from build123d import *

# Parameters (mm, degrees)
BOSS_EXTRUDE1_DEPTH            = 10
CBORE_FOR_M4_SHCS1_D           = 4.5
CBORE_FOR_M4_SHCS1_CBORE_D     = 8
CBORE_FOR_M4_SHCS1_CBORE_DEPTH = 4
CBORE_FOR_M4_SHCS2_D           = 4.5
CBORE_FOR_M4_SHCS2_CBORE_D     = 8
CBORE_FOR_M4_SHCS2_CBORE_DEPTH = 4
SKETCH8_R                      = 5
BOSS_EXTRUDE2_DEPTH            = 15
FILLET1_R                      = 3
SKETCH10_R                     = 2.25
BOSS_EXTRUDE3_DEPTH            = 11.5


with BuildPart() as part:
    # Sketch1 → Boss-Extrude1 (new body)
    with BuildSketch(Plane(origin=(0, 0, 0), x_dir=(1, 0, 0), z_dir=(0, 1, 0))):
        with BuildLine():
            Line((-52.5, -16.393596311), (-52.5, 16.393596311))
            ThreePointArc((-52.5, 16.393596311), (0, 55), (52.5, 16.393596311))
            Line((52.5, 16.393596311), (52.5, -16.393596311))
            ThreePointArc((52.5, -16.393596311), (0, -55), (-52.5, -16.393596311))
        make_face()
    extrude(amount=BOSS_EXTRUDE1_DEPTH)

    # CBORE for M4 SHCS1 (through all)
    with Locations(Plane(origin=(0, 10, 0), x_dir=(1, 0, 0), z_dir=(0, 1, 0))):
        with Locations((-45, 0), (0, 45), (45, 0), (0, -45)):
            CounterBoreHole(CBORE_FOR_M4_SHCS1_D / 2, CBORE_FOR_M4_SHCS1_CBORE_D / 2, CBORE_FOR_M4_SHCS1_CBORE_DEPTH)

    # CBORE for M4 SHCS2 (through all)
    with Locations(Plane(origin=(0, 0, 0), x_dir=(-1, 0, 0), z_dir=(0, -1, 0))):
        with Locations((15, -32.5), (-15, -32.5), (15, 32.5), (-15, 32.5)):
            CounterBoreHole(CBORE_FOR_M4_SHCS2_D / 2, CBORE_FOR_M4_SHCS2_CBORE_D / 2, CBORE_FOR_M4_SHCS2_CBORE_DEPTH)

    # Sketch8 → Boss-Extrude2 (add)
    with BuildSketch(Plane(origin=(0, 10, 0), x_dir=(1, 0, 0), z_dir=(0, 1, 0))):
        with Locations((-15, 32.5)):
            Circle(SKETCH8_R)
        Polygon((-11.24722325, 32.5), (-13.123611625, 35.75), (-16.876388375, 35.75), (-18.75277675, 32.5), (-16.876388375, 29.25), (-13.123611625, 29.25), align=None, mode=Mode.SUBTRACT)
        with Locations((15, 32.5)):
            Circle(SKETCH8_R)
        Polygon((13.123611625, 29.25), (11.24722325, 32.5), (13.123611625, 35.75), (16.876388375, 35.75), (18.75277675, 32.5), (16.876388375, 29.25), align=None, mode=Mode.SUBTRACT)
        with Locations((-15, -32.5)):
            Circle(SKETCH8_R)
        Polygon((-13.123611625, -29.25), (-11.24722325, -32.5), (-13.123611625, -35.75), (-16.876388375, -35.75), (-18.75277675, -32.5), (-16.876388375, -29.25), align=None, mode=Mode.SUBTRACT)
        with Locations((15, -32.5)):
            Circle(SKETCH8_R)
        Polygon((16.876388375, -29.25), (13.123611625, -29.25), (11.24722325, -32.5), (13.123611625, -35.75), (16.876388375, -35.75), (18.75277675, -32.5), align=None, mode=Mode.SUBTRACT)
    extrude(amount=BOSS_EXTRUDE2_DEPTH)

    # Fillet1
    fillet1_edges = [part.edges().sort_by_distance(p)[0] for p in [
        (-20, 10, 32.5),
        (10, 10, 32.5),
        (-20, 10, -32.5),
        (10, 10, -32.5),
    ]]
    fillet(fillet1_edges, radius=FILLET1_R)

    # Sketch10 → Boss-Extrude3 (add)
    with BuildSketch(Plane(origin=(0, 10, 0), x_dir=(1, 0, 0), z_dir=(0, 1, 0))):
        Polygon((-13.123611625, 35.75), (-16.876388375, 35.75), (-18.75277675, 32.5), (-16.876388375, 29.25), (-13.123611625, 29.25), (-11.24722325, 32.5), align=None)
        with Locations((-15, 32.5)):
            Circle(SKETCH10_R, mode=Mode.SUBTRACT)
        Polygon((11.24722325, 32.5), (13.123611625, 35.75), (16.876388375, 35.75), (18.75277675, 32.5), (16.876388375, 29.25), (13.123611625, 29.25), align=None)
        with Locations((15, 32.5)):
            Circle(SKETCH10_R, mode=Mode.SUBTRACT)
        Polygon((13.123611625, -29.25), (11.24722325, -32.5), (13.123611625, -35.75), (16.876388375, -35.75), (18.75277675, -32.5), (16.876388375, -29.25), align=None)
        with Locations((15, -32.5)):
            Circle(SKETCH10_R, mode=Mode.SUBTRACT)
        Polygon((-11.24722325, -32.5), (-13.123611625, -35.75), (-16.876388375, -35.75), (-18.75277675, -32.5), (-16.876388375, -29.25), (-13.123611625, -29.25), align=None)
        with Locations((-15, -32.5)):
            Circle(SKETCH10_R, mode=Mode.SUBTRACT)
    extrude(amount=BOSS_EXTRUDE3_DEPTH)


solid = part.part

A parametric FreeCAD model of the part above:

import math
import FreeCAD as App
import Part
import Sketcher
from FreeCAD import Vector
Q = App.Units.Quantity


def edges_at(feature, points):
    """Names of the edges that pass closest to the given points."""
    edges = feature.Shape.Edges
    near = lambda p: min(range(len(edges)), key=lambda i: edges[i].distToShape(Part.Vertex(*p))[0])
    return sorted({f"Edge{near(p) + 1}" for p in points})

doc = App.newDocument("Part")
body = doc.addObject("PartDesign::Body", "Body")

sketch1 = doc.addObject("Sketcher::SketchObject", "Sketch")
body.addObject(sketch1)
sketch1.AttachmentSupport = (doc.XZ_Plane, [""])
sketch1.MapMode = "FlatFace"
sketch1.addGeometry(Part.LineSegment(Vector(-52, -16, 0), Vector(-52, 16, 0)), False)
sketch1.addGeometry(Part.ArcOfCircle(Part.Circle(Vector(0, 0, 0), Vector(0, 0, 1), 55), math.radians(17), math.radians(163)), False)
sketch1.addGeometry(Part.LineSegment(Vector(52, 16, 0), Vector(52, -16, 0)), False)
sketch1.addGeometry(Part.ArcOfCircle(Part.Circle(Vector(0, 0, 0), Vector(0, 0, 1), 55), math.radians(-163), math.radians(-17)), False)
sketch1.addConstraint(Sketcher.Constraint("Coincident", 0, 2, 1, 2))
sketch1.addConstraint(Sketcher.Constraint("Coincident", 1, 1, 2, 1))
sketch1.addConstraint(Sketcher.Constraint("Coincident", 2, 2, 3, 2))
sketch1.addConstraint(Sketcher.Constraint("Coincident", 3, 1, 0, 1))
sketch1.addConstraint(Sketcher.Constraint("Vertical", 0))
sketch1.addConstraint(Sketcher.Constraint("Vertical", 2))
sketch1.addConstraint(Sketcher.Constraint("Coincident", 1, 3, -1, 1))
sketch1.addConstraint(Sketcher.Constraint("Coincident", 3, 3, -1, 1))
sketch1.addConstraint(Sketcher.Constraint("Equal", 1, 3))
sketch1.addConstraint(Sketcher.Constraint("Horizontal", 0, 2, 1, 1))
sketch1.addConstraint(Sketcher.Constraint("Radius", 1, Q("55 mm")))
sketch1.addConstraint(Sketcher.Constraint("DistanceX", 0, 2, 1, 1, Q("105 mm")))
pad1 = doc.addObject("PartDesign::Pad", "Pad")
body.addObject(pad1)
pad1.Profile = sketch1
pad1.Length = 10
pad1.Reversed = True

sketch2 = doc.addObject("Sketcher::SketchObject", "Sketch001")
body.addObject(sketch2)
sketch2.AttachmentSupport = (doc.XZ_Plane, [""])
sketch2.MapMode = "FlatFace"
sketch2.AttachmentOffset = App.Placement(Vector(0, 0, -10), App.Rotation())
sketch2.addGeometry(Part.Circle(Vector(-45, 0, 0), Vector(0, 0, 1), 2.2), False)
sketch2.addGeometry(Part.Circle(Vector(0, -45, 0), Vector(0, 0, 1), 2.2), False)
sketch2.addGeometry(Part.Circle(Vector(45, 0, 0), Vector(0, 0, 1), 2.2), False)
sketch2.addGeometry(Part.Circle(Vector(0, 45, 0), Vector(0, 0, 1), 2.2), False)
sketch2.addConstraint(Sketcher.Constraint("Equal", 0, 1))
sketch2.addConstraint(Sketcher.Constraint("Equal", 1, 2))
sketch2.addConstraint(Sketcher.Constraint("Equal", 2, 3))
sketch2.addConstraint(Sketcher.Constraint("Symmetric", 0, 3, 2, 3, -1, 1))
sketch2.addConstraint(Sketcher.Constraint("Symmetric", 1, 3, 3, 3, -1, 1))
sketch2.addConstraint(Sketcher.Constraint("PointOnObject", 0, 3, -1))
sketch2.addConstraint(Sketcher.Constraint("PointOnObject", 1, 3, -2))
sketch2.addConstraint(Sketcher.Constraint("Diameter", 0, Q("4.5 mm")))
sketch2.addConstraint(Sketcher.Constraint("DistanceX", 0, 3, -1, 1, Q("45 mm")))
sketch2.addConstraint(Sketcher.Constraint("DistanceY", 1, 3, -1, 1, Q("45 mm")))
doc.recompute()
hole = doc.addObject("PartDesign::Hole", "Hole")
body.addObject(hole)
hole.Profile = sketch2
hole.ThreadType = "None"
hole.Diameter = 4.5
hole.DepthType = "ThroughAll"
hole.HoleCutType = "Counterbore"
hole.HoleCutDiameter = 8
hole.HoleCutDepth = 4
hole.Reversed = True

sketch3 = doc.addObject("Sketcher::SketchObject", "Sketch002")
body.addObject(sketch3)
sketch3.AttachmentSupport = (doc.XZ_Plane, [""])
sketch3.MapMode = "FlatFace"
sketch3.addGeometry(Part.Circle(Vector(-15, 32.5, 0), Vector(0, 0, 1), 2.2), False)
sketch3.addGeometry(Part.Circle(Vector(15, 32.5, 0), Vector(0, 0, 1), 2.2), False)
sketch3.addGeometry(Part.Circle(Vector(-15, -32.5, 0), Vector(0, 0, 1), 2.2), False)
sketch3.addGeometry(Part.Circle(Vector(15, -32.5, 0), Vector(0, 0, 1), 2.2), False)
sketch3.addConstraint(Sketcher.Constraint("Equal", 0, 1))
sketch3.addConstraint(Sketcher.Constraint("Equal", 1, 2))
sketch3.addConstraint(Sketcher.Constraint("Equal", 2, 3))
sketch3.addConstraint(Sketcher.Constraint("Symmetric", 1, 3, 2, 3, -1, 1))
sketch3.addConstraint(Sketcher.Constraint("Symmetric", 0, 3, 3, 3, -1, 1))
sketch3.addConstraint(Sketcher.Constraint("Symmetric", 0, 3, 1, 3, -2))
sketch3.addConstraint(Sketcher.Constraint("Diameter", 0, Q("4.5 mm")))
sketch3.addConstraint(Sketcher.Constraint("DistanceX", 0, 3, -1, 1, Q("15 mm")))
sketch3.addConstraint(Sketcher.Constraint("DistanceY", 2, 3, 0, 3, Q("65 mm")))
doc.recompute()
hole2 = doc.addObject("PartDesign::Hole", "Hole001")
body.addObject(hole2)
hole2.Profile = sketch3
hole2.ThreadType = "None"
hole2.Diameter = 4.5
hole2.DepthType = "ThroughAll"
hole2.HoleCutType = "Counterbore"
hole2.HoleCutDiameter = 8
hole2.HoleCutDepth = 4

sketch4 = doc.addObject("Sketcher::SketchObject", "Sketch003")
body.addObject(sketch4)
sketch4.AttachmentSupport = (doc.XZ_Plane, [""])
sketch4.MapMode = "FlatFace"
sketch4.AttachmentOffset = App.Placement(Vector(0, 0, -10), App.Rotation())
sketch4.addGeometry(Part.Circle(Vector(-15, -32.5, 0), Vector(0, 0, 1), 5), False)
sketch4.addGeometry(Part.LineSegment(Vector(-13.1, -35.8, 0), Vector(-11.2, -32.5, 0)), False)
sketch4.addGeometry(Part.LineSegment(Vector(-11.2, -32.5, 0), Vector(-13.1, -29.2, 0)), False)
sketch4.addGeometry(Part.LineSegment(Vector(-13.1, -29.2, 0), Vector(-16.9, -29.2, 0)), False)
sketch4.addGeometry(Part.LineSegment(Vector(-16.9, -29.2, 0), Vector(-18.8, -32.5, 0)), False)
sketch4.addGeometry(Part.LineSegment(Vector(-18.8, -32.5, 0), Vector(-16.9, -35.8, 0)), False)
sketch4.addGeometry(Part.LineSegment(Vector(-16.9, -35.8, 0), Vector(-13.1, -35.8, 0)), False)
sketch4.addGeometry(Part.Circle(Vector(15, -32.5, 0), Vector(0, 0, 1), 5), False)
sketch4.addGeometry(Part.LineSegment(Vector(16.9, -29.2, 0), Vector(13.1, -29.2, 0)), False)
sketch4.addGeometry(Part.LineSegment(Vector(13.1, -29.2, 0), Vector(11.2, -32.5, 0)), False)
sketch4.addGeometry(Part.LineSegment(Vector(11.2, -32.5, 0), Vector(13.1, -35.8, 0)), False)
sketch4.addGeometry(Part.LineSegment(Vector(13.1, -35.8, 0), Vector(16.9, -35.8, 0)), False)
sketch4.addGeometry(Part.LineSegment(Vector(16.9, -35.8, 0), Vector(18.8, -32.5, 0)), False)
sketch4.addGeometry(Part.LineSegment(Vector(18.8, -32.5, 0), Vector(16.9, -29.2, 0)), False)
sketch4.addGeometry(Part.Circle(Vector(-15, 32.5, 0), Vector(0, 0, 1), 5), False)
sketch4.addGeometry(Part.LineSegment(Vector(-16.9, 29.2, 0), Vector(-13.1, 29.2, 0)), False)
sketch4.addGeometry(Part.LineSegment(Vector(-13.1, 29.2, 0), Vector(-11.2, 32.5, 0)), False)
sketch4.addGeometry(Part.LineSegment(Vector(-11.2, 32.5, 0), Vector(-13.1, 35.8, 0)), False)
sketch4.addGeometry(Part.LineSegment(Vector(-13.1, 35.8, 0), Vector(-16.9, 35.8, 0)), False)
sketch4.addGeometry(Part.LineSegment(Vector(-16.9, 35.8, 0), Vector(-18.8, 32.5, 0)), False)
sketch4.addGeometry(Part.LineSegment(Vector(-18.8, 32.5, 0), Vector(-16.9, 29.2, 0)), False)
sketch4.addGeometry(Part.Circle(Vector(15, 32.5, 0), Vector(0, 0, 1), 5), False)
sketch4.addGeometry(Part.LineSegment(Vector(13.1, 29.2, 0), Vector(16.9, 29.2, 0)), False)
sketch4.addGeometry(Part.LineSegment(Vector(16.9, 29.2, 0), Vector(18.8, 32.5, 0)), False)
sketch4.addGeometry(Part.LineSegment(Vector(18.8, 32.5, 0), Vector(16.9, 35.8, 0)), False)
sketch4.addGeometry(Part.LineSegment(Vector(16.9, 35.8, 0), Vector(13.1, 35.8, 0)), False)
sketch4.addGeometry(Part.LineSegment(Vector(13.1, 35.8, 0), Vector(11.2, 32.5, 0)), False)
sketch4.addGeometry(Part.LineSegment(Vector(11.2, 32.5, 0), Vector(13.1, 29.2, 0)), False)
sketch4.addConstraint(Sketcher.Constraint("Coincident", 1, 2, 2, 1))
sketch4.addConstraint(Sketcher.Constraint("Coincident", 2, 2, 3, 1))
sketch4.addConstraint(Sketcher.Constraint("Coincident", 3, 2, 4, 1))
sketch4.addConstraint(Sketcher.Constraint("Coincident", 4, 2, 5, 1))
sketch4.addConstraint(Sketcher.Constraint("Coincident", 5, 2, 6, 1))
sketch4.addConstraint(Sketcher.Constraint("Coincident", 6, 2, 1, 1))
sketch4.addConstraint(Sketcher.Constraint("Coincident", 8, 2, 9, 1))
sketch4.addConstraint(Sketcher.Constraint("Coincident", 9, 2, 10, 1))
sketch4.addConstraint(Sketcher.Constraint("Coincident", 10, 2, 11, 1))
sketch4.addConstraint(Sketcher.Constraint("Coincident", 11, 2, 12, 1))
sketch4.addConstraint(Sketcher.Constraint("Coincident", 12, 2, 13, 1))
sketch4.addConstraint(Sketcher.Constraint("Coincident", 13, 2, 8, 1))
sketch4.addConstraint(Sketcher.Constraint("Coincident", 15, 2, 16, 1))
sketch4.addConstraint(Sketcher.Constraint("Coincident", 16, 2, 17, 1))
sketch4.addConstraint(Sketcher.Constraint("Coincident", 17, 2, 18, 1))
sketch4.addConstraint(Sketcher.Constraint("Coincident", 18, 2, 19, 1))
sketch4.addConstraint(Sketcher.Constraint("Coincident", 19, 2, 20, 1))
sketch4.addConstraint(Sketcher.Constraint("Coincident", 20, 2, 15, 1))
sketch4.addConstraint(Sketcher.Constraint("Coincident", 22, 2, 23, 1))
sketch4.addConstraint(Sketcher.Constraint("Coincident", 23, 2, 24, 1))
sketch4.addConstraint(Sketcher.Constraint("Coincident", 24, 2, 25, 1))
sketch4.addConstraint(Sketcher.Constraint("Coincident", 25, 2, 26, 1))
sketch4.addConstraint(Sketcher.Constraint("Coincident", 26, 2, 27, 1))
sketch4.addConstraint(Sketcher.Constraint("Coincident", 27, 2, 22, 1))
sketch4.addConstraint(Sketcher.Constraint("Horizontal", 3))
sketch4.addConstraint(Sketcher.Constraint("Horizontal", 6))
sketch4.addConstraint(Sketcher.Constraint("Horizontal", 8))
sketch4.addConstraint(Sketcher.Constraint("Horizontal", 11))
sketch4.addConstraint(Sketcher.Constraint("Horizontal", 15))
sketch4.addConstraint(Sketcher.Constraint("Horizontal", 18))
sketch4.addConstraint(Sketcher.Constraint("Horizontal", 22))
sketch4.addConstraint(Sketcher.Constraint("Horizontal", 25))
sketch4.addConstraint(Sketcher.Constraint("Equal", 0, 7))
sketch4.addConstraint(Sketcher.Constraint("Equal", 7, 14))
sketch4.addConstraint(Sketcher.Constraint("Equal", 14, 21))
sketch4.addConstraint(Sketcher.Constraint("Symmetric", 7, 3, 14, 3, -1, 1))
sketch4.addConstraint(Sketcher.Constraint("Symmetric", 0, 3, 21, 3, -1, 1))
sketch4.addConstraint(Sketcher.Constraint("Symmetric", 8, 2, 15, 2, -1, 1))
sketch4.addConstraint(Sketcher.Constraint("Symmetric", 9, 2, 16, 2, -1, 1))
sketch4.addConstraint(Sketcher.Constraint("Symmetric", 10, 2, 17, 2, -1, 1))
sketch4.addConstraint(Sketcher.Constraint("Symmetric", 12, 2, 19, 2, -1, 1))
sketch4.addConstraint(Sketcher.Constraint("Symmetric", 3, 2, 22, 2, -1, 1))
sketch4.addConstraint(Sketcher.Constraint("Symmetric", 4, 2, 23, 2, -1, 1))
sketch4.addConstraint(Sketcher.Constraint("Symmetric", 5, 2, 24, 2, -1, 1))
sketch4.addConstraint(Sketcher.Constraint("Symmetric", 1, 2, 26, 2, -1, 1))
sketch4.addConstraint(Sketcher.Constraint("Symmetric", 0, 3, 7, 3, -2))
sketch4.addConstraint(Sketcher.Constraint("Symmetric", 2, 2, 8, 2, -2))
sketch4.addConstraint(Sketcher.Constraint("Symmetric", 1, 2, 9, 2, -2))
sketch4.addConstraint(Sketcher.Constraint("Symmetric", 6, 2, 10, 2, -2))
sketch4.addConstraint(Sketcher.Constraint("Symmetric", 4, 2, 12, 2, -2))
sketch4.addConstraint(Sketcher.Constraint("Parallel", 1, 4))
sketch4.addConstraint(Sketcher.Constraint("Parallel", 2, 5))
sketch4.addConstraint(Sketcher.Constraint("Parallel", 4, 9))
sketch4.addConstraint(Sketcher.Constraint("Parallel", 9, 12))
sketch4.addConstraint(Sketcher.Constraint("Parallel", 10, 13))
sketch4.addConstraint(Sketcher.Constraint("Parallel", 16, 19))
sketch4.addConstraint(Sketcher.Constraint("Parallel", 17, 20))
sketch4.addConstraint(Sketcher.Constraint("Parallel", 23, 26))
sketch4.addConstraint(Sketcher.Constraint("Parallel", 24, 27))
sketch4.addConstraint(Sketcher.Constraint("Horizontal", 7, 3, 1, 2))
sketch4.addConstraint(Sketcher.Constraint("Horizontal", 1, 2, 4, 2))
sketch4.addConstraint(Sketcher.Constraint("Vertical", 3, 2, 5, 2))
sketch4.addConstraint(Sketcher.Constraint("Diameter", 0, Q("10 mm")))
sketch4.addConstraint(Sketcher.Constraint("Angle", 1, Q("60 deg")))
sketch4.addConstraint(Sketcher.Constraint("DistanceX", 0, 3, -1, 1, Q("15 mm")))
sketch4.addConstraint(Sketcher.Constraint("DistanceY", 0, 3, 14, 3, Q("65 mm")))
sketch4.addConstraint(Sketcher.Constraint("DistanceX", 15, 2, 22, 2, Q("30 mm")))
sketch4.addConstraint(Sketcher.Constraint("DistanceY", 5, 2, 3, 2, Q("6.5 mm")))
sketch4.addConstraint(Sketcher.Constraint("DistanceX", 3, 2, 3, 1, Q("3.752777 mm")))
pad2 = doc.addObject("PartDesign::Pad", "Pad001")
body.addObject(pad2)
pad2.Profile = sketch4
pad2.Length = 15
pad2.Reversed = True
doc.recompute()

fillet = doc.addObject("PartDesign::Fillet", "Fillet")
body.addObject(fillet)
fillet.Base = (pad2, edges_at(pad2, [
    (-20, 10, 32.5),
    (10, 10, 32.5),
    (-20, 10, -32.5),
    (10, 10, -32.5),
]))
fillet.Radius = 3

sketch5 = doc.addObject("Sketcher::SketchObject", "Sketch004")
body.addObject(sketch5)
sketch5.AttachmentSupport = (doc.XZ_Plane, [""])
sketch5.MapMode = "FlatFace"
sketch5.AttachmentOffset = App.Placement(Vector(0, 0, -10), App.Rotation())
sketch5.addGeometry(Part.LineSegment(Vector(-13.1, -35.8, 0), Vector(-16.9, -35.8, 0)), False)
sketch5.addGeometry(Part.LineSegment(Vector(-16.9, -35.8, 0), Vector(-18.8, -32.5, 0)), False)
sketch5.addGeometry(Part.LineSegment(Vector(-18.8, -32.5, 0), Vector(-16.9, -29.2, 0)), False)
sketch5.addGeometry(Part.LineSegment(Vector(-16.9, -29.2, 0), Vector(-13.1, -29.2, 0)), False)
sketch5.addGeometry(Part.LineSegment(Vector(-13.1, -29.2, 0), Vector(-11.2, -32.5, 0)), False)
sketch5.addGeometry(Part.LineSegment(Vector(-11.2, -32.5, 0), Vector(-13.1, -35.8, 0)), False)
sketch5.addGeometry(Part.Circle(Vector(-15, -32.5, 0), Vector(0, 0, 1), 2.2), False)
sketch5.addGeometry(Part.LineSegment(Vector(13.1, -35.8, 0), Vector(11.2, -32.5, 0)), False)
sketch5.addGeometry(Part.LineSegment(Vector(11.2, -32.5, 0), Vector(13.1, -29.2, 0)), False)
sketch5.addGeometry(Part.LineSegment(Vector(13.1, -29.2, 0), Vector(16.9, -29.2, 0)), False)
sketch5.addGeometry(Part.LineSegment(Vector(16.9, -29.2, 0), Vector(18.8, -32.5, 0)), False)
sketch5.addGeometry(Part.LineSegment(Vector(18.8, -32.5, 0), Vector(16.9, -35.8, 0)), False)
sketch5.addGeometry(Part.LineSegment(Vector(16.9, -35.8, 0), Vector(13.1, -35.8, 0)), False)
sketch5.addGeometry(Part.Circle(Vector(15, -32.5, 0), Vector(0, 0, 1), 2.2), False)
sketch5.addGeometry(Part.LineSegment(Vector(13.1, 29.2, 0), Vector(11.2, 32.5, 0)), False)
sketch5.addGeometry(Part.LineSegment(Vector(11.2, 32.5, 0), Vector(13.1, 35.8, 0)), False)
sketch5.addGeometry(Part.LineSegment(Vector(13.1, 35.8, 0), Vector(16.9, 35.8, 0)), False)
sketch5.addGeometry(Part.LineSegment(Vector(16.9, 35.8, 0), Vector(18.8, 32.5, 0)), False)
sketch5.addGeometry(Part.LineSegment(Vector(18.8, 32.5, 0), Vector(16.9, 29.2, 0)), False)
sketch5.addGeometry(Part.LineSegment(Vector(16.9, 29.2, 0), Vector(13.1, 29.2, 0)), False)
sketch5.addGeometry(Part.Circle(Vector(15, 32.5, 0), Vector(0, 0, 1), 2.2), False)
sketch5.addGeometry(Part.LineSegment(Vector(-13.1, 35.8, 0), Vector(-11.2, 32.5, 0)), False)
sketch5.addGeometry(Part.LineSegment(Vector(-11.2, 32.5, 0), Vector(-13.1, 29.2, 0)), False)
sketch5.addGeometry(Part.LineSegment(Vector(-13.1, 29.2, 0), Vector(-16.9, 29.2, 0)), False)
sketch5.addGeometry(Part.LineSegment(Vector(-16.9, 29.2, 0), Vector(-18.8, 32.5, 0)), False)
sketch5.addGeometry(Part.LineSegment(Vector(-18.8, 32.5, 0), Vector(-16.9, 35.8, 0)), False)
sketch5.addGeometry(Part.LineSegment(Vector(-16.9, 35.8, 0), Vector(-13.1, 35.8, 0)), False)
sketch5.addGeometry(Part.Circle(Vector(-15, 32.5, 0), Vector(0, 0, 1), 2.2), False)
sketch5.addConstraint(Sketcher.Constraint("Coincident", 0, 2, 1, 1))
sketch5.addConstraint(Sketcher.Constraint("Coincident", 1, 2, 2, 1))
sketch5.addConstraint(Sketcher.Constraint("Coincident", 2, 2, 3, 1))
sketch5.addConstraint(Sketcher.Constraint("Coincident", 3, 2, 4, 1))
sketch5.addConstraint(Sketcher.Constraint("Coincident", 4, 2, 5, 1))
sketch5.addConstraint(Sketcher.Constraint("Coincident", 5, 2, 0, 1))
sketch5.addConstraint(Sketcher.Constraint("Coincident", 7, 2, 8, 1))
sketch5.addConstraint(Sketcher.Constraint("Coincident", 8, 2, 9, 1))
sketch5.addConstraint(Sketcher.Constraint("Coincident", 9, 2, 10, 1))
sketch5.addConstraint(Sketcher.Constraint("Coincident", 10, 2, 11, 1))
sketch5.addConstraint(Sketcher.Constraint("Coincident", 11, 2, 12, 1))
sketch5.addConstraint(Sketcher.Constraint("Coincident", 12, 2, 7, 1))
sketch5.addConstraint(Sketcher.Constraint("Coincident", 14, 2, 15, 1))
sketch5.addConstraint(Sketcher.Constraint("Coincident", 15, 2, 16, 1))
sketch5.addConstraint(Sketcher.Constraint("Coincident", 16, 2, 17, 1))
sketch5.addConstraint(Sketcher.Constraint("Coincident", 17, 2, 18, 1))
sketch5.addConstraint(Sketcher.Constraint("Coincident", 18, 2, 19, 1))
sketch5.addConstraint(Sketcher.Constraint("Coincident", 19, 2, 14, 1))
sketch5.addConstraint(Sketcher.Constraint("Coincident", 21, 2, 22, 1))
sketch5.addConstraint(Sketcher.Constraint("Coincident", 22, 2, 23, 1))
sketch5.addConstraint(Sketcher.Constraint("Coincident", 23, 2, 24, 1))
sketch5.addConstraint(Sketcher.Constraint("Coincident", 24, 2, 25, 1))
sketch5.addConstraint(Sketcher.Constraint("Coincident", 25, 2, 26, 1))
sketch5.addConstraint(Sketcher.Constraint("Coincident", 26, 2, 21, 1))
sketch5.addConstraint(Sketcher.Constraint("Horizontal", 0))
sketch5.addConstraint(Sketcher.Constraint("Horizontal", 3))
sketch5.addConstraint(Sketcher.Constraint("Horizontal", 9))
sketch5.addConstraint(Sketcher.Constraint("Horizontal", 12))
sketch5.addConstraint(Sketcher.Constraint("Horizontal", 16))
sketch5.addConstraint(Sketcher.Constraint("Horizontal", 19))
sketch5.addConstraint(Sketcher.Constraint("Horizontal", 23))
sketch5.addConstraint(Sketcher.Constraint("Horizontal", 26))
sketch5.addConstraint(Sketcher.Constraint("Equal", 6, 13))
sketch5.addConstraint(Sketcher.Constraint("Equal", 13, 20))
sketch5.addConstraint(Sketcher.Constraint("Equal", 20, 27))
sketch5.addConstraint(Sketcher.Constraint("Symmetric", 6, 3, 20, 3, -1, 1))
sketch5.addConstraint(Sketcher.Constraint("Symmetric", 13, 3, 27, 3, -1, 1))
sketch5.addConstraint(Sketcher.Constraint("Symmetric", 4, 2, 14, 2, -1, 1))
sketch5.addConstraint(Sketcher.Constraint("Symmetric", 5, 2, 15, 2, -1, 1))
sketch5.addConstraint(Sketcher.Constraint("Symmetric", 1, 2, 17, 2, -1, 1))
sketch5.addConstraint(Sketcher.Constraint("Symmetric", 2, 2, 18, 2, -1, 1))
sketch5.addConstraint(Sketcher.Constraint("Symmetric", 7, 2, 21, 2, -1, 1))
sketch5.addConstraint(Sketcher.Constraint("Symmetric", 8, 2, 22, 2, -1, 1))
sketch5.addConstraint(Sketcher.Constraint("Symmetric", 10, 2, 24, 2, -1, 1))
sketch5.addConstraint(Sketcher.Constraint("Symmetric", 11, 2, 25, 2, -1, 1))
sketch5.addConstraint(Sketcher.Constraint("Symmetric", 6, 3, 13, 3, -2))
sketch5.addConstraint(Sketcher.Constraint("Symmetric", 4, 2, 7, 2, -2))
sketch5.addConstraint(Sketcher.Constraint("Symmetric", 3, 2, 8, 2, -2))
sketch5.addConstraint(Sketcher.Constraint("Symmetric", 1, 2, 10, 2, -2))
sketch5.addConstraint(Sketcher.Constraint("Symmetric", 0, 2, 11, 2, -2))
sketch5.addConstraint(Sketcher.Constraint("Parallel", 1, 4))
sketch5.addConstraint(Sketcher.Constraint("Parallel", 2, 5))
sketch5.addConstraint(Sketcher.Constraint("Parallel", 4, 7))
sketch5.addConstraint(Sketcher.Constraint("Parallel", 5, 8))
sketch5.addConstraint(Sketcher.Constraint("Parallel", 7, 10))
sketch5.addConstraint(Sketcher.Constraint("Parallel", 10, 14))
sketch5.addConstraint(Sketcher.Constraint("Parallel", 14, 17))
sketch5.addConstraint(Sketcher.Constraint("Parallel", 17, 21))
sketch5.addConstraint(Sketcher.Constraint("Parallel", 21, 24))
sketch5.addConstraint(Sketcher.Constraint("Horizontal", 13, 3, 1, 2))
sketch5.addConstraint(Sketcher.Constraint("Horizontal", 1, 2, 4, 2))
sketch5.addConstraint(Sketcher.Constraint("Vertical", 0, 2, 2, 2))
sketch5.addConstraint(Sketcher.Constraint("Diameter", 6, Q("4.5 mm")))
sketch5.addConstraint(Sketcher.Constraint("Angle", 1, Q("120 deg")))
sketch5.addConstraint(Sketcher.Constraint("DistanceX", 6, 3, -1, 1, Q("15 mm")))
sketch5.addConstraint(Sketcher.Constraint("DistanceY", 13, 3, 20, 3, Q("65 mm")))
sketch5.addConstraint(Sketcher.Constraint("DistanceX", 3, 2, 9, 2, Q("30 mm")))
sketch5.addConstraint(Sketcher.Constraint("DistanceY", 0, 2, 2, 2, Q("6.5 mm")))
sketch5.addConstraint(Sketcher.Constraint("DistanceX", 0, 2, 0, 1, Q("3.752777 mm")))
pad3 = doc.addObject("PartDesign::Pad", "Pad002")
body.addObject(pad3)
pad3.Profile = sketch5
pad3.Length = 11.5
pad3.Reversed = True

doc.recompute()
